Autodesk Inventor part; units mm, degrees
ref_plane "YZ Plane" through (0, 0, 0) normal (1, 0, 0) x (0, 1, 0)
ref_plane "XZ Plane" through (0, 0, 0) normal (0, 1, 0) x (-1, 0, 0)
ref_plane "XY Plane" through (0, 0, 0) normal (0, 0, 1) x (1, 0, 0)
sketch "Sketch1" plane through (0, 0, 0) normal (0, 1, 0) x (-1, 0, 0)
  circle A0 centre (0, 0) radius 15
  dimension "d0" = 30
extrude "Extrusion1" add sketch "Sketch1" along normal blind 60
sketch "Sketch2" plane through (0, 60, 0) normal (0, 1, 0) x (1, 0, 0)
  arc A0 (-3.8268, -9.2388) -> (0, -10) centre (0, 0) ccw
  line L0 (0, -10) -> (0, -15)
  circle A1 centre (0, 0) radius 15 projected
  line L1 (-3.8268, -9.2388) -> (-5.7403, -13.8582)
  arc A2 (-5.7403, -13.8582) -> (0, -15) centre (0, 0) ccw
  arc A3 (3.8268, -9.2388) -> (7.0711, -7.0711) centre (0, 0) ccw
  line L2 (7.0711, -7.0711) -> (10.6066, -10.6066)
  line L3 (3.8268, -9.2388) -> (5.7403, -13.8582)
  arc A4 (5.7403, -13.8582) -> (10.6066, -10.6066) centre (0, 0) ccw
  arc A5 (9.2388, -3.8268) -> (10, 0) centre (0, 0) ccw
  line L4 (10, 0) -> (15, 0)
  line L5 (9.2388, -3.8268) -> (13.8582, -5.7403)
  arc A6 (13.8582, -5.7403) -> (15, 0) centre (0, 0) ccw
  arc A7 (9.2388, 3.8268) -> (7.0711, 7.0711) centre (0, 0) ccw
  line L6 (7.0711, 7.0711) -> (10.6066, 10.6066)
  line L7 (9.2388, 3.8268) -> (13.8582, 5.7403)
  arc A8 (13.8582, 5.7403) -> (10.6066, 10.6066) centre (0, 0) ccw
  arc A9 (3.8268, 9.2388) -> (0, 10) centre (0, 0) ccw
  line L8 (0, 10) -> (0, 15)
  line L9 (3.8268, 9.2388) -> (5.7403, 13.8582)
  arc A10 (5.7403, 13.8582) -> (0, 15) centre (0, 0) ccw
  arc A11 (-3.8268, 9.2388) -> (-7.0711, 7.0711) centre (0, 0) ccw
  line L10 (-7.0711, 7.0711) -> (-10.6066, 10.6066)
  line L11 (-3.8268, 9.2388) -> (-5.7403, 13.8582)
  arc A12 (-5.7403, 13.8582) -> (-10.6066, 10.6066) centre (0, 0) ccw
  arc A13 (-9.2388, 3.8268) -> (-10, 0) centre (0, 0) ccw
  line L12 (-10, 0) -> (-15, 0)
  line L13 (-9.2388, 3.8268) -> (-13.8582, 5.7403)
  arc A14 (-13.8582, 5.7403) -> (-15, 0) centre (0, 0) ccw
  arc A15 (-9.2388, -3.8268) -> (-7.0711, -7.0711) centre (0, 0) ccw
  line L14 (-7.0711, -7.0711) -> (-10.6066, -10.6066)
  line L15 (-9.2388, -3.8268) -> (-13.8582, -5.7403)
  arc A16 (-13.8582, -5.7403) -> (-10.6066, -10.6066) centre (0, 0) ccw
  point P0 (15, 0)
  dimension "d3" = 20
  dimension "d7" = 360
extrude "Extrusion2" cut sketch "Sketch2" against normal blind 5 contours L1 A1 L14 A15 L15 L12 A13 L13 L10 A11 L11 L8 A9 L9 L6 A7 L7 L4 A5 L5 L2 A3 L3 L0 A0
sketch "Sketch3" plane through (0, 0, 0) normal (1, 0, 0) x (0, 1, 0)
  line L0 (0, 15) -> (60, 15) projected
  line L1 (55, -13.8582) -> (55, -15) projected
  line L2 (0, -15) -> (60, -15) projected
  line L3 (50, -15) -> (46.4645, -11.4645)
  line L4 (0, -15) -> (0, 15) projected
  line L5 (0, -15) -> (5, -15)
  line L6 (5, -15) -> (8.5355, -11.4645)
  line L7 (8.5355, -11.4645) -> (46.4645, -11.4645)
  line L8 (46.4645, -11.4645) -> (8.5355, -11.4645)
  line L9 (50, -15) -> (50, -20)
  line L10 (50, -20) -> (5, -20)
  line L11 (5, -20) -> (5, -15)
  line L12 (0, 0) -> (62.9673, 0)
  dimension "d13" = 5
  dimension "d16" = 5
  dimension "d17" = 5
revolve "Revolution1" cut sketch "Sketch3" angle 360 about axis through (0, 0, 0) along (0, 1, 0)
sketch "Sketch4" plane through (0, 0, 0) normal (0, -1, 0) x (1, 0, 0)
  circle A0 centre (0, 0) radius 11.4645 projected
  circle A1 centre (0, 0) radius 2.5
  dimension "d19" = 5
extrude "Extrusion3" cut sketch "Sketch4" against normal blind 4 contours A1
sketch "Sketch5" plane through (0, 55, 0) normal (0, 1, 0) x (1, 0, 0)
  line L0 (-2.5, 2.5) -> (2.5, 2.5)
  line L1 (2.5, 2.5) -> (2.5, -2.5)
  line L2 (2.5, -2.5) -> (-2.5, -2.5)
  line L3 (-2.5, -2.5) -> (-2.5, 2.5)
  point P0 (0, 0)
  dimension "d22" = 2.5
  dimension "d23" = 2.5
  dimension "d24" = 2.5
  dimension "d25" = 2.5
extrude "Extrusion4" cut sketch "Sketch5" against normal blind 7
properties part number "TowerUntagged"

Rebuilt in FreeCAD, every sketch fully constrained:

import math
import FreeCAD as App
import Part
import Sketcher
Q = App.Units.Quantity


def add_polygon(sketch, points):
    """Adds a closed chain of lines whose ends are joined by coincident constraints."""
    first, n = sketch.GeometryCount, len(points)
    for a, b in zip(points, points[1:] + points[:1]):
        sketch.addGeometry(Part.LineSegment(App.Vector(*a, 0), App.Vector(*b, 0)), False)
    for i in range(n):
        sketch.addConstraint(Sketcher.Constraint("Coincident", first + i, 2, first + (i + 1) % n, 1))

doc = App.newDocument("Part")
body = doc.addObject("PartDesign::Body", "Body")

sketch1 = body.newObject("Sketcher::SketchObject", "Sketch")
sketch1.AttachmentSupport = (doc.getObject("XZ_Plane"), [""])
sketch1.MapMode = "FlatFace"
sketch1.addGeometry(Part.Circle(App.Vector(0, 0, 0), App.Vector(0, 0, 1), 15), False)
sketch1.addConstraint(Sketcher.Constraint("Coincident", 0, 3, -1, 1))
sketch1.addConstraint(Sketcher.Constraint("Diameter", 0, Q("30 mm")))
pad1 = body.newObject("PartDesign::Pad", "Pad")
pad1.Profile = sketch1
pad1.Length = 60
pad1.Reversed = True

sketch2 = body.newObject("Sketcher::SketchObject", "Sketch001")
sketch2.AttachmentSupport = (doc.getObject("XZ_Plane"), [""])
sketch2.MapMode = "FlatFace"
sketch2.AttachmentOffset = App.Placement(App.Vector(0, 0, -60), App.Rotation())
sketch2.addGeometry(Part.LineSegment(App.Vector(-5.7403, 13.8582, 0), App.Vector(-3.8268, 9.2388, 0)), False)
sketch2.addGeometry(Part.ArcOfCircle(Part.Circle(App.Vector(0, 0, 0), App.Vector(0, 0, 1), 9.999991), math.radians(90), math.radians(112.499808)), False)
sketch2.addGeometry(Part.LineSegment(App.Vector(0, 10, 0), App.Vector(0, 15, 0)), False)
sketch2.addGeometry(Part.ArcOfCircle(Part.Circle(App.Vector(0, 0, 0), App.Vector(0, 0, 1), 15), math.radians(67.499839), math.radians(90)), False)
sketch2.addGeometry(Part.LineSegment(App.Vector(5.7403, 13.8582, 0), App.Vector(3.8268, 9.2388, 0)), False)
sketch2.addGeometry(Part.ArcOfCircle(Part.Circle(App.Vector(-0.00067, -0.001253, 0), App.Vector(0, 0, 1), 10.001405), math.radians(45.002363), math.radians(67.499394)), False)
sketch2.addGeometry(Part.LineSegment(App.Vector(7.0711, 7.0711, 0), App.Vector(10.6066, 10.6066, 0)), False)
sketch2.addGeometry(Part.ArcOfCircle(Part.Circle(App.Vector(0, 0, 0), App.Vector(0, 0, 1), 15), math.radians(22.500161), math.radians(45)), False)
sketch2.addGeometry(Part.LineSegment(App.Vector(13.8582, 5.7403, 0), App.Vector(9.2388, 3.8268, 0)), False)
sketch2.addGeometry(Part.ArcOfCircle(Part.Circle(App.Vector(0, 0, 0), App.Vector(0, 0, 1), 9.999991), math.radians(0), math.radians(22.499808)), False)
sketch2.addGeometry(Part.LineSegment(App.Vector(10, 0, 0), App.Vector(15, 0, 0)), False)
sketch2.addGeometry(Part.ArcOfCircle(Part.Circle(App.Vector(0, 0, 0), App.Vector(0, 0, 1), 15), math.radians(-22.500161), math.radians(0)), False)
sketch2.addGeometry(Part.LineSegment(App.Vector(13.8582, -5.7403, 0), App.Vector(9.2388, -3.8268, 0)), False)
sketch2.addGeometry(Part.ArcOfCircle(Part.Circle(App.Vector(-0.001253, 0.00067, 0), App.Vector(0, 0, 1), 10.001405), math.radians(-44.997637), math.radians(-22.500606)), False)
sketch2.addGeometry(Part.LineSegment(App.Vector(7.0711, -7.0711, 0), App.Vector(10.6066, -10.6066, 0)), False)
sketch2.addGeometry(Part.ArcOfCircle(Part.Circle(App.Vector(0, 0, 0), App.Vector(0, 0, 1), 15), math.radians(-67.499839), math.radians(-45)), False)
sketch2.addGeometry(Part.LineSegment(App.Vector(5.7403, -13.8582, 0), App.Vector(3.8268, -9.2388, 0)), False)
sketch2.addGeometry(Part.ArcOfCircle(Part.Circle(App.Vector(0, 0, 0), App.Vector(0, 0, 1), 9.999991), math.radians(-90), math.radians(-67.500192)), False)
sketch2.addGeometry(Part.LineSegment(App.Vector(0, -10, 0), App.Vector(0, -15, 0)), False)
sketch2.addGeometry(Part.ArcOfCircle(Part.Circle(App.Vector(0, 0, 0), App.Vector(0, 0, 1), 15), math.radians(-112.500161), math.radians(-90)), False)
sketch2.addGeometry(Part.LineSegment(App.Vector(-5.7403, -13.8582, 0), App.Vector(-3.8268, -9.2388, 0)), False)
sketch2.addGeometry(Part.ArcOfCircle(Part.Circle(App.Vector(0.00067, 0.001253, 0), App.Vector(0, 0, 1), 10.001405), math.radians(-134.997637), math.radians(-112.500606)), False)
sketch2.addGeometry(Part.LineSegment(App.Vector(-7.0711, -7.0711, 0), App.Vector(-10.6066, -10.6066, 0)), False)
sketch2.addGeometry(Part.ArcOfCircle(Part.Circle(App.Vector(0, 0, 0), App.Vector(0, 0, 1), 15), math.radians(-157.499839), math.radians(-135)), False)
sketch2.addGeometry(Part.LineSegment(App.Vector(-13.8582, -5.7403, 0), App.Vector(-9.2388, -3.8268, 0)), False)
sketch2.addGeometry(Part.ArcOfCircle(Part.Circle(App.Vector(0, 0, 0), App.Vector(0, 0, 1), 9.999991), math.radians(180), math.radians(202.499808)), False)
sketch2.addGeometry(Part.LineSegment(App.Vector(-10, 0, 0), App.Vector(-15, 0, 0)), False)
sketch2.addGeometry(Part.ArcOfCircle(Part.Circle(App.Vector(0, 0, 0), App.Vector(0, 0, 1), 15), math.radians(157.499839), math.radians(180)), False)
sketch2.addGeometry(Part.LineSegment(App.Vector(-13.8582, 5.7403, 0), App.Vector(-9.2388, 3.8268, 0)), False)
sketch2.addGeometry(Part.ArcOfCircle(Part.Circle(App.Vector(0.001253, -0.00067, 0), App.Vector(0, 0, 1), 10.001405), math.radians(135.002363), math.radians(157.499394)), False)
sketch2.addGeometry(Part.LineSegment(App.Vector(-7.0711, 7.0711, 0), App.Vector(-10.6066, 10.6066, 0)), False)
sketch2.addGeometry(Part.ArcOfCircle(Part.Circle(App.Vector(0, 0, 0), App.Vector(0, 0, 1), 15), math.radians(112.500161), math.radians(135)), False)
sketch2.addConstraint(Sketcher.Constraint("Coincident", 0, 2, 1, 2))
sketch2.addConstraint(Sketcher.Constraint("Coincident", 1, 1, 2, 1))
sketch2.addConstraint(Sketcher.Constraint("Coincident", 2, 2, 3, 2))
sketch2.addConstraint(Sketcher.Constraint("Coincident", 3, 1, 4, 1))
sketch2.addConstraint(Sketcher.Constraint("Coincident", 4, 2, 5, 2))
sketch2.addConstraint(Sketcher.Constraint("Coincident", 5, 1, 6, 1))
sketch2.addConstraint(Sketcher.Constraint("Coincident", 6, 2, 7, 2))
sketch2.addConstraint(Sketcher.Constraint("Coincident", 7, 1, 8, 1))
sketch2.addConstraint(Sketcher.Constraint("Coincident", 8, 2, 9, 2))
sketch2.addConstraint(Sketcher.Constraint("Coincident", 9, 1, 10, 1))
sketch2.addConstraint(Sketcher.Constraint("Coincident", 10, 2, 11, 2))
sketch2.addConstraint(Sketcher.Constraint("Coincident", 11, 1, 12, 1))
sketch2.addConstraint(Sketcher.Constraint("Coincident", 12, 2, 13, 2))
sketch2.addConstraint(Sketcher.Constraint("Coincident", 13, 1, 14, 1))
sketch2.addConstraint(Sketcher.Constraint("Coincident", 14, 2, 15, 2))
sketch2.addConstraint(Sketcher.Constraint("Coincident", 15, 1, 16, 1))
sketch2.addConstraint(Sketcher.Constraint("Coincident", 16, 2, 17, 2))
sketch2.addConstraint(Sketcher.Constraint("Coincident", 17, 1, 18, 1))
sketch2.addConstraint(Sketcher.Constraint("Coincident", 18, 2, 19, 2))
sketch2.addConstraint(Sketcher.Constraint("Coincident", 19, 1, 20, 1))
sketch2.addConstraint(Sketcher.Constraint("Coincident", 20, 2, 21, 2))
sketch2.addConstraint(Sketcher.Constraint("Coincident", 21, 1, 22, 1))
sketch2.addConstraint(Sketcher.Constraint("Coincident", 22, 2, 23, 2))
sketch2.addConstraint(Sketcher.Constraint("Coincident", 23, 1, 24, 1))
sketch2.addConstraint(Sketcher.Constraint("Coincident", 24, 2, 25, 2))
sketch2.addConstraint(Sketcher.Constraint("Coincident", 25, 1, 26, 1))
sketch2.addConstraint(Sketcher.Constraint("Coincident", 26, 2, 27, 2))
sketch2.addConstraint(Sketcher.Constraint("Coincident", 27, 1, 28, 1))
sketch2.addConstraint(Sketcher.Constraint("Coincident", 28, 2, 29, 2))
sketch2.addConstraint(Sketcher.Constraint("Coincident", 29, 1, 30, 1))
sketch2.addConstraint(Sketcher.Constraint("Coincident", 30, 2, 31, 2))
sketch2.addConstraint(Sketcher.Constraint("Coincident", 31, 1, 0, 1))
sketch2.addConstraint(Sketcher.Constraint("Vertical", 2))
sketch2.addConstraint(Sketcher.Constraint("Horizontal", 10))
sketch2.addConstraint(Sketcher.Constraint("Vertical", 18))
sketch2.addConstraint(Sketcher.Constraint("Horizontal", 26))
sketch2.addConstraint(Sketcher.Constraint("Coincident", 1, 3, -1, 1))
sketch2.addConstraint(Sketcher.Constraint("Coincident", 3, 3, -1, 1))
sketch2.addConstraint(Sketcher.Constraint("Coincident", 7, 3, -1, 1))
sketch2.addConstraint(Sketcher.Constraint("Coincident", 9, 3, -1, 1))
sketch2.addConstraint(Sketcher.Constraint("Coincident", 11, 3, -1, 1))
sketch2.addConstraint(Sketcher.Constraint("Coincident", 15, 3, -1, 1))
sketch2.addConstraint(Sketcher.Constraint("Coincident", 17, 3, -1, 1))
sketch2.addConstraint(Sketcher.Constraint("Coincident", 19, 3, -1, 1))
sketch2.addConstraint(Sketcher.Constraint("Coincident", 23, 3, -1, 1))
sketch2.addConstraint(Sketcher.Constraint("Coincident", 25, 3, -1, 1))
sketch2.addConstraint(Sketcher.Constraint("Coincident", 27, 3, -1, 1))
sketch2.addConstraint(Sketcher.Constraint("Coincident", 31, 3, -1, 1))
sketch2.addConstraint(Sketcher.Constraint("Equal", 3, 7))
sketch2.addConstraint(Sketcher.Constraint("Equal", 1, 9))
sketch2.addConstraint(Sketcher.Constraint("Equal", 7, 11))
sketch2.addConstraint(Sketcher.Constraint("Equal", 5, 13))
sketch2.addConstraint(Sketcher.Constraint("Equal", 11, 15))
sketch2.addConstraint(Sketcher.Constraint("Equal", 9, 17))
sketch2.addConstraint(Sketcher.Constraint("Equal", 15, 19))
sketch2.addConstraint(Sketcher.Constraint("Equal", 13, 21))
sketch2.addConstraint(Sketcher.Constraint("Equal", 19, 23))
sketch2.addConstraint(Sketcher.Constraint("Equal", 17, 25))
sketch2.addConstraint(Sketcher.Constraint("Equal", 23, 27))
sketch2.addConstraint(Sketcher.Constraint("Equal", 21, 29))
sketch2.addConstraint(Sketcher.Constraint("Equal", 27, 31))
sketch2.addConstraint(Sketcher.Constraint("Symmetric", 5, 3, 21, 3, -1, 1))
sketch2.addConstraint(Sketcher.Constraint("Symmetric", 13, 3, 29, 3, -1, 1))
sketch2.addConstraint(Sketcher.Constraint("Symmetric", 0, 2, 4, 2, -2))
sketch2.addConstraint(Sketcher.Constraint("Symmetric", 13, 1, 21, 1, -2))
sketch2.addConstraint(Sketcher.Constraint("Symmetric", 12, 2, 24, 2, -2))
sketch2.addConstraint(Sketcher.Constraint("PointOnObject", 1, 1, -2))
sketch2.addConstraint(Sketcher.Constraint("PointOnObject", 9, 1, -1))
sketch2.addConstraint(Sketcher.Constraint("PointOnObject", 17, 1, -2))
sketch2.addConstraint(Sketcher.Constraint("PointOnObject", 25, 1, -1))
sketch2.addConstraint(Sketcher.Constraint("Perpendicular", 0, 8))
sketch2.addConstraint(Sketcher.Constraint("Perpendicular", 4, 12))
sketch2.addConstraint(Sketcher.Constraint("Perpendicular", 6, 14))
sketch2.addConstraint(Sketcher.Constraint("Perpendicular", 8, 16))
sketch2.addConstraint(Sketcher.Constraint("Perpendicular", 12, 20))
sketch2.addConstraint(Sketcher.Constraint("Perpendicular", 14, 22))
sketch2.addConstraint(Sketcher.Constraint("Perpendicular", 16, 24))
sketch2.addConstraint(Sketcher.Constraint("Perpendicular", 20, 28))
sketch2.addConstraint(Sketcher.Constraint("Perpendicular", 22, 30))
sketch2.addConstraint(Sketcher.Constraint("Horizontal", 15, 1, 19, 1))
sketch2.addConstraint(Sketcher.Constraint("Horizontal", 16, 2, 20, 2))
sketch2.addConstraint(Sketcher.Constraint("Horizontal", 14, 2, 22, 2))
sketch2.addConstraint(Sketcher.Constraint("Horizontal", 7, 1, 27, 1))
sketch2.addConstraint(Sketcher.Constraint("Horizontal", 5, 1, 29, 1))
sketch2.addConstraint(Sketcher.Constraint("Vertical", 7, 1, 11, 1))
sketch2.addConstraint(Sketcher.Constraint("Vertical", 5, 1, 13, 1))
sketch2.addConstraint(Sketcher.Constraint("Vertical", 3, 1, 15, 1))
sketch2.addConstraint(Sketcher.Constraint("Equal", 4, 6))
sketch2.addConstraint(Sketcher.Constraint("Radius", 1, Q("10 mm")))
sketch2.addConstraint(Sketcher.Constraint("Radius", 3, Q("15 mm")))
sketch2.addConstraint(Sketcher.Constraint("Angle", 0, Q("-67.4991 deg")))
sketch2.addConstraint(Sketcher.Constraint("Radius", 5, Q("10.0014 mm")))
sketch2.addConstraint(Sketcher.Constraint("DistanceX", -1, 1, 5, 1, Q("7.071 mm")))
sketch2.addConstraint(Sketcher.Constraint("DistanceX", 0, 2, 3, 1, Q("9.567 mm")))
sketch2.addConstraint(Sketcher.Constraint("DistanceX", 5, 1, 7, 1, Q("6.787 mm")))
pocket1 = body.newObject("PartDesign::Pocket", "Pocket")
pocket1.Profile = sketch2
pocket1.Length = 5
pocket1.Reversed = True

sketch3 = body.newObject("Sketcher::SketchObject", "Sketch002")
sketch3.AttachmentSupport = (doc.getObject("YZ_Plane"), [""])
sketch3.MapMode = "FlatFace"
add_polygon(sketch3, [(8.5, -11.5), (5, -15), (5, -20), (50, -20), (50, -15), (46.5, -11.5)])
sketch3.addConstraint(Sketcher.Constraint("Vertical", 1))
sketch3.addConstraint(Sketcher.Constraint("Horizontal", 2))
sketch3.addConstraint(Sketcher.Constraint("Vertical", 3))
sketch3.addConstraint(Sketcher.Constraint("Horizontal", 5))
sketch3.addConstraint(Sketcher.Constraint("Perpendicular", 0, 4))
sketch3.addConstraint(Sketcher.Constraint("Horizontal", 0, 2, 3, 2))
sketch3.addConstraint(Sketcher.Constraint("Equal", 0, 4))
sketch3.addConstraint(Sketcher.Constraint("DistanceY", 1, 2, 1, 1, Q("5 mm")))
sketch3.addConstraint(Sketcher.Constraint("Distance", 0, Q("5 mm")))
sketch3.addConstraint(Sketcher.Constraint("DistanceX", -1, 1, 0, 2, Q("5 mm")))
sketch3.addConstraint(Sketcher.Constraint("DistanceX", 2, 1, 2, 2, Q("45 mm")))
sketch3.addConstraint(Sketcher.Constraint("DistanceY", 0, 2, -1, 1, Q("15 mm")))
groove = body.newObject("PartDesign::Groove", "Groove")
groove.Profile = sketch3
groove.ReferenceAxis = (sketch3, ["H_Axis"])
groove.Angle = 360

sketch4 = body.newObject("Sketcher::SketchObject", "Sketch003")
sketch4.AttachmentSupport = (doc.getObject("XZ_Plane"), [""])
sketch4.MapMode = "FlatFace"
sketch4.addGeometry(Part.Circle(App.Vector(0, 0, 0), App.Vector(0, 0, 1), 2.5), False)
sketch4.addConstraint(Sketcher.Constraint("Coincident", 0, 3, -1, 1))
sketch4.addConstraint(Sketcher.Constraint("Diameter", 0, Q("5 mm")))
pocket2 = body.newObject("PartDesign::Pocket", "Pocket001")
pocket2.Profile = sketch4
pocket2.Length = 4

sketch5 = body.newObject("Sketcher::SketchObject", "Sketch004")
sketch5.AttachmentSupport = (doc.getObject("XZ_Plane"), [""])
sketch5.MapMode = "FlatFace"
sketch5.AttachmentOffset = App.Placement(App.Vector(0, 0, -55), App.Rotation())
add_polygon(sketch5, [(2, -2), (-2, -2), (-2, 2), (2, 2)])
sketch5.addConstraint(Sketcher.Constraint("Horizontal", 0))
sketch5.addConstraint(Sketcher.Constraint("Vertical", 1))
sketch5.addConstraint(Sketcher.Constraint("Horizontal", 2))
sketch5.addConstraint(Sketcher.Constraint("Vertical", 3))
sketch5.addConstraint(Sketcher.Constraint("Symmetric", 0, 2, 2, 2, -1, 1))
sketch5.addConstraint(Sketcher.Constraint("Equal", 2, 1))
sketch5.addConstraint(Sketcher.Constraint("DistanceX", 0, 2, -1, 1, Q("2.5 mm")))
pocket3 = body.newObject("PartDesign::Pocket", "Pocket002")
pocket3.Profile = sketch5
pocket3.Length = 7
pocket3.Reversed = True

doc.recompute()
